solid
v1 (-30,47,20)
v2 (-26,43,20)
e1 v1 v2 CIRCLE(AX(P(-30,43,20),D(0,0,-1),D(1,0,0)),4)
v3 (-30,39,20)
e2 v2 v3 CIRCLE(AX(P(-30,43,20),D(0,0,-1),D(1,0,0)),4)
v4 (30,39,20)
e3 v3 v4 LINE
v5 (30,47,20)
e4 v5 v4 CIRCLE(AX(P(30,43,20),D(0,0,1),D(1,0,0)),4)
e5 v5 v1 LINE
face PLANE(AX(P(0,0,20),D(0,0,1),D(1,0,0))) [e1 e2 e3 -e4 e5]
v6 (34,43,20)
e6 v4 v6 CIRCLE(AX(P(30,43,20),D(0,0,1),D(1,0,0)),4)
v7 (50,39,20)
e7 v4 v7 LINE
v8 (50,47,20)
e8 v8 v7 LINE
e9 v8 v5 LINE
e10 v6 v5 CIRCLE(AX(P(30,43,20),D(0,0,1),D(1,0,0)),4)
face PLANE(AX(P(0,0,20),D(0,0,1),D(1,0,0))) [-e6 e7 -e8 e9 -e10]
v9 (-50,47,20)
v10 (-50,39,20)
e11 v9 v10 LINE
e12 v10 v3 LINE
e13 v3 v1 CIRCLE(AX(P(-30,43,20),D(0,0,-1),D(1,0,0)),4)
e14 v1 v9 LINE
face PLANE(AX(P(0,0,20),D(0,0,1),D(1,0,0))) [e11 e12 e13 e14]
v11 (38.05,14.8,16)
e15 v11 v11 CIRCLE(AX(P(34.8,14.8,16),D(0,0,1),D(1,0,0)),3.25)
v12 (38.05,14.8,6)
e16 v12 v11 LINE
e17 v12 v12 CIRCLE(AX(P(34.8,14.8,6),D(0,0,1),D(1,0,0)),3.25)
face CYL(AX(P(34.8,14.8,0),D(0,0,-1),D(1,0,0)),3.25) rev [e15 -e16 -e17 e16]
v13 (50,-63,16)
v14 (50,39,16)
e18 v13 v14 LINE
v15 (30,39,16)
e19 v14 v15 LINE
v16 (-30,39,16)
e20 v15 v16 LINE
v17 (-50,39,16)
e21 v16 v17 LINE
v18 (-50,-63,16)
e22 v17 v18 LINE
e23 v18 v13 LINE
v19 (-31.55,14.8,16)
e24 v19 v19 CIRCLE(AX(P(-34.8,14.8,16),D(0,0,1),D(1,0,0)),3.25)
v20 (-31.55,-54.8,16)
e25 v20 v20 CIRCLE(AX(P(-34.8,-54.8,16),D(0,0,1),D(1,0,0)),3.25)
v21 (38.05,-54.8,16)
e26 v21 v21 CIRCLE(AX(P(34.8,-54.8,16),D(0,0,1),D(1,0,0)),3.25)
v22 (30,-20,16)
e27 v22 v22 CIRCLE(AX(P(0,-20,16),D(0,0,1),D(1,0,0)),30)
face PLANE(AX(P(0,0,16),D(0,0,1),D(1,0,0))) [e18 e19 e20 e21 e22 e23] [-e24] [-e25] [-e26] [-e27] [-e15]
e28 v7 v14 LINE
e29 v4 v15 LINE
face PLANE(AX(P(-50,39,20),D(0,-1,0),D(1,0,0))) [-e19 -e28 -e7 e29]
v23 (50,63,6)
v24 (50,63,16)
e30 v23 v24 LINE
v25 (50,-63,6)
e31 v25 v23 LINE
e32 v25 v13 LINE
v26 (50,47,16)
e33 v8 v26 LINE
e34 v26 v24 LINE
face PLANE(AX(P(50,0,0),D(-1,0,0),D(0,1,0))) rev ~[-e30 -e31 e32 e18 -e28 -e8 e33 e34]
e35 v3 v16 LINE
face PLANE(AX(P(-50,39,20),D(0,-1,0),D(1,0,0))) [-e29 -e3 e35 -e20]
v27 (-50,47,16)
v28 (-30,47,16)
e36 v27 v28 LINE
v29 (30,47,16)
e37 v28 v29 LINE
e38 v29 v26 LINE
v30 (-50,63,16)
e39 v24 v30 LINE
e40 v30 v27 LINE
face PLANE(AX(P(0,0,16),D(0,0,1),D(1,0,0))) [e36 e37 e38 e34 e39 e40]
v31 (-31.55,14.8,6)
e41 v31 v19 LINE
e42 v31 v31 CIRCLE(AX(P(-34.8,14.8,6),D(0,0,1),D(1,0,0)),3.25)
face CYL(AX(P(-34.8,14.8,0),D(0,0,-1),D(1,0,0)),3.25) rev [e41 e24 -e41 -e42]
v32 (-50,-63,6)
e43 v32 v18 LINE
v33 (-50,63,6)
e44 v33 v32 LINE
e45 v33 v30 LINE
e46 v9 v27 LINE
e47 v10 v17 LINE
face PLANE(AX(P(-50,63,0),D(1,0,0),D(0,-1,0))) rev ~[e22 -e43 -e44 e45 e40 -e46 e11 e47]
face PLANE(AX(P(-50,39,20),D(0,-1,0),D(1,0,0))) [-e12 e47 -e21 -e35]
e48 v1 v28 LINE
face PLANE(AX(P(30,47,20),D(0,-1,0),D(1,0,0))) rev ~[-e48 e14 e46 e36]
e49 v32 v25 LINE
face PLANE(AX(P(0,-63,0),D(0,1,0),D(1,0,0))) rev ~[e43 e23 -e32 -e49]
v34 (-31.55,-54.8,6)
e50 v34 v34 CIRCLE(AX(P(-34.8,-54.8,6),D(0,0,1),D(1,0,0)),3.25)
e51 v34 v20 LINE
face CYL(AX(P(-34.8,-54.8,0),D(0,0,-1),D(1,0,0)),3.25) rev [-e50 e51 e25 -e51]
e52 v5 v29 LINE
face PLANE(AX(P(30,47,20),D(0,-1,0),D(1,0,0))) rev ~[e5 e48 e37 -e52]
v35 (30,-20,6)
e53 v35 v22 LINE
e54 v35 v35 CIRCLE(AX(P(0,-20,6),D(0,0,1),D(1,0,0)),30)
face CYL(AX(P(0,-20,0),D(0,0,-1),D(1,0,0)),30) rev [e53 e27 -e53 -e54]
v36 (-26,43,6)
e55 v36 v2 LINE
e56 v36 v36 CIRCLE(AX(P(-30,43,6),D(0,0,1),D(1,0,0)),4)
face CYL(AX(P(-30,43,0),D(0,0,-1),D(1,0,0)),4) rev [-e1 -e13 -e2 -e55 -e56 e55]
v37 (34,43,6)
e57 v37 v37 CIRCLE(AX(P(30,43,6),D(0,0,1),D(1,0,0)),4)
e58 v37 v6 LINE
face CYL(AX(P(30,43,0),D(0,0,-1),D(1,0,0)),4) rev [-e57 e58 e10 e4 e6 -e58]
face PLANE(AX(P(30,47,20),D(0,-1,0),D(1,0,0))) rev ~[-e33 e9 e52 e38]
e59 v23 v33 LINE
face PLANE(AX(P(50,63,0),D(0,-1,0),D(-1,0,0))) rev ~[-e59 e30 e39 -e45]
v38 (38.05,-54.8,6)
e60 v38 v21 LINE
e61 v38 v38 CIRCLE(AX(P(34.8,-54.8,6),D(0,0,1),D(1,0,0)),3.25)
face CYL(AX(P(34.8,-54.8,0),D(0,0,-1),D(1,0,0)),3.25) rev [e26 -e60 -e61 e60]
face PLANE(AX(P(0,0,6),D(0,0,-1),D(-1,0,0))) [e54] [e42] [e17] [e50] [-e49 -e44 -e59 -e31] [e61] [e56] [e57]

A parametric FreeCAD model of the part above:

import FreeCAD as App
import Part
import Sketcher
from FreeCAD import Vector
Q = App.Units.Quantity

doc = App.newDocument("Part")
params = doc.addObject("Spreadsheet::Sheet", "Params")
for row, (alias, value) in enumerate([
    ("sketch1_diameter", "60 mm"),
    ("sketch1_diameter2", "8 mm"),
    ("sketch1_diameter3", "6.5 mm"),
    ("sketch1_width", "100 mm"),
    ("sketch1_height", "126 mm"),
    ("pad1_length", "20 mm"),
    ("sketch2_diameter", "60 mm"),
    ("sketch2_diameter2", "6.5 mm"),
    ("sketch2_width", "100 mm"),
    ("sketch2_height", "16 mm"),
    ("sketch2_height2", "102 mm"),
    ("pocket1_length", "4 mm"),
    ("sketch3_diameter", "60 mm"),
    ("sketch3_diameter2", "8 mm"),
    ("sketch3_diameter3", "6.5 mm"),
    ("sketch3_width", "100 mm"),
    ("sketch3_height", "126 mm"),
    ("pocket2_length", "6 mm"),
], start=1):
    params.set(f"A{row}", alias)
    params.set(f"B{row}", "=" + value)
    params.setAlias(f"B{row}", alias)

body = doc.addObject("PartDesign::Body", "Body")

sketch1 = doc.addObject("Sketcher::SketchObject", "Sketch")
body.addObject(sketch1)
sketch1.AttachmentSupport = (doc.XY_Plane, [""])
sketch1.MapMode = "FlatFace"
sketch1.addGeometry([
    Part.LineSegment(Vector(50, 63, 0), Vector(-50, 63, 0)),
    Part.LineSegment(Vector(-50, 63, 0), Vector(-50, -63, 0)),
    Part.LineSegment(Vector(-50, -63, 0), Vector(50, -63, 0)),
    Part.LineSegment(Vector(50, -63, 0), Vector(50, 63, 0)),
    Part.Circle(Vector(0, -20, 0), Vector(0, 0, 1), 30),
    Part.Circle(Vector(34.8, 14.8, 0), Vector(0, 0, 1), 3.2),
    Part.Circle(Vector(30, 43, 0), Vector(0, 0, 1), 4),
    Part.Circle(Vector(34.8, -54.8, 0), Vector(0, 0, 1), 3.2),
    Part.Circle(Vector(-30, 43, 0), Vector(0, 0, 1), 4),
    Part.Circle(Vector(-34.8, 14.8, 0), Vector(0, 0, 1), 3.2),
    Part.Circle(Vector(-34.8, -54.8, 0), Vector(0, 0, 1), 3.2),
], False)
sketch1.addConstraint([
    Sketcher.Constraint("Coincident", 0, 2, 1, 1),
    Sketcher.Constraint("Coincident", 1, 2, 2, 1),
    Sketcher.Constraint("Coincident", 2, 2, 3, 1),
    Sketcher.Constraint("Coincident", 3, 2, 0, 1),
    Sketcher.Constraint("Horizontal", 0),
    Sketcher.Constraint("Vertical", 1),
    Sketcher.Constraint("Horizontal", 2),
    Sketcher.Constraint("Vertical", 3),
    Sketcher.Constraint("Equal", 5, 7),
    Sketcher.Constraint("Equal", 6, 8),
    Sketcher.Constraint("Equal", 7, 9),
    Sketcher.Constraint("Equal", 9, 10),
    Sketcher.Constraint("Symmetric", 0, 2, 2, 2, -1, 1),
    Sketcher.Constraint("Symmetric", 6, 3, 8, 3, -2),
    Sketcher.Constraint("Symmetric", 5, 3, 9, 3, -2),
    Sketcher.Constraint("Symmetric", 7, 3, 10, 3, -2),
    Sketcher.Constraint("PointOnObject", 4, 3, -2),
    Sketcher.Constraint("Vertical", 5, 3, 7, 3),
    Sketcher.Constraint("Diameter", 4, Q("60 mm")),
    Sketcher.Constraint("Diameter", 6, Q("8 mm")),
    Sketcher.Constraint("Diameter", 5, Q("6.5 mm")),
    Sketcher.Constraint("DistanceX", 0, 2, 0, 1, Q("100 mm")),
    Sketcher.Constraint("DistanceY", 1, 2, 1, 1, Q("126 mm")),
    Sketcher.Constraint("DistanceY", 4, 3, -1, 1, Q("20 mm")),
    Sketcher.Constraint("DistanceY", -1, 1, 6, 3, Q("43 mm")),
    Sketcher.Constraint("DistanceX", 8, 3, 6, 3, Q("60 mm")),
    Sketcher.Constraint("DistanceX", -1, 1, 5, 3, Q("34.8 mm")),
    Sketcher.Constraint("DistanceY", 4, 3, 5, 3, Q("34.8 mm")),
    Sketcher.Constraint("DistanceY", 7, 3, 4, 3, Q("34.8 mm")),
])
sketch1.setExpression("Constraints[18]", "Params.sketch1_diameter")
sketch1.setExpression("Constraints[19]", "Params.sketch1_diameter2")
sketch1.setExpression("Constraints[20]", "Params.sketch1_diameter3")
sketch1.setExpression("Constraints[21]", "Params.sketch1_width")
sketch1.setExpression("Constraints[22]", "Params.sketch1_height")
pad1 = doc.addObject("PartDesign::Pad", "Pad")
body.addObject(pad1)
pad1.Profile = sketch1
pad1.setExpression("Length", "Params.pad1_length")

sketch2 = doc.addObject("Sketcher::SketchObject", "Sketch001")
body.addObject(sketch2)
sketch2.AttachmentSupport = (doc.XY_Plane, [""])
sketch2.MapMode = "FlatFace"
sketch2.AttachmentOffset = App.Placement(Vector(0, 0, 20), App.Rotation())
sketch2.addGeometry([
    Part.LineSegment(Vector(50, 47, 0), Vector(50, 63, 0)),
    Part.LineSegment(Vector(50, 63, 0), Vector(-50, 63, 0)),
    Part.LineSegment(Vector(-50, 63, 0), Vector(-50, 47, 0)),
    Part.LineSegment(Vector(-50, 47, 0), Vector(50, 47, 0)),
    Part.LineSegment(Vector(50, -63, 0), Vector(50, 39, 0)),
    Part.LineSegment(Vector(50, 39, 0), Vector(-50, 39, 0)),
    Part.LineSegment(Vector(-50, 39, 0), Vector(-50, -63, 0)),
    Part.LineSegment(Vector(-50, -63, 0), Vector(50, -63, 0)),
    Part.Circle(Vector(-34.8, -54.8, 0), Vector(0, 0, 1), 3.2),
    Part.Circle(Vector(34.8, -54.8, 0), Vector(0, 0, 1), 3.2),
    Part.Circle(Vector(0, -20, 0), Vector(0, 0, 1), 30),
    Part.Circle(Vector(-34.8, 14.8, 0), Vector(0, 0, 1), 3.2),
    Part.Circle(Vector(34.8, 14.8, 0), Vector(0, 0, 1), 3.2),
], False)
sketch2.addConstraint([
    Sketcher.Constraint("Coincident", 0, 2, 1, 1),
    Sketcher.Constraint("Coincident", 1, 2, 2, 1),
    Sketcher.Constraint("Coincident", 2, 2, 3, 1),
    Sketcher.Constraint("Coincident", 3, 2, 0, 1),
    Sketcher.Constraint("Coincident", 4, 2, 5, 1),
    Sketcher.Constraint("Coincident", 5, 2, 6, 1),
    Sketcher.Constraint("Coincident", 6, 2, 7, 1),
    Sketcher.Constraint("Coincident", 7, 2, 4, 1),
    Sketcher.Constraint("Vertical", 0),
    Sketcher.Constraint("Horizontal", 1),
    Sketcher.Constraint("Vertical", 2),
    Sketcher.Constraint("Horizontal", 3),
    Sketcher.Constraint("Vertical", 4),
    Sketcher.Constraint("Horizontal", 5),
    Sketcher.Constraint("Vertical", 6),
    Sketcher.Constraint("Horizontal", 7),
    Sketcher.Constraint("Equal", 8, 9),
    Sketcher.Constraint("Equal", 9, 11),
    Sketcher.Constraint("Equal", 11, 12),
    Sketcher.Constraint("Symmetric", 0, 2, 6, 2, -1, 1),
    Sketcher.Constraint("Symmetric", 8, 3, 9, 3, -2),
    Sketcher.Constraint("Symmetric", 11, 3, 12, 3, -2),
    Sketcher.Constraint("PointOnObject", 10, 3, -2),
    Sketcher.Constraint("Vertical", 8, 3, 11, 3),
    Sketcher.Constraint("Vertical", 3, 2, 4, 2),
    Sketcher.Constraint("Vertical", 2, 2, 5, 2),
    Sketcher.Constraint("Diameter", 10, Q("60 mm")),
    Sketcher.Constraint("Diameter", 8, Q("6.5 mm")),
    Sketcher.Constraint("DistanceX", 1, 2, 1, 1, Q("100 mm")),
    Sketcher.Constraint("DistanceY", 0, 1, 0, 2, Q("16 mm")),
    Sketcher.Constraint("DistanceY", 4, 1, 4, 2, Q("102 mm")),
    Sketcher.Constraint("DistanceY", 10, 3, -1, 1, Q("20 mm")),
    Sketcher.Constraint("DistanceY", -1, 1, 0, 2, Q("63 mm")),
    Sketcher.Constraint("DistanceX", 8, 3, -1, 1, Q("34.8 mm")),
    Sketcher.Constraint("DistanceY", 8, 3, -1, 1, Q("54.8 mm")),
    Sketcher.Constraint("DistanceY", -1, 1, 11, 3, Q("14.8 mm")),
])
sketch2.setExpression("Constraints[26]", "Params.sketch2_diameter")
sketch2.setExpression("Constraints[27]", "Params.sketch2_diameter2")
sketch2.setExpression("Constraints[28]", "Params.sketch2_width")
sketch2.setExpression("Constraints[29]", "Params.sketch2_height")
sketch2.setExpression("Constraints[30]", "Params.sketch2_height2")
pocket1 = doc.addObject("PartDesign::Pocket", "Pocket")
body.addObject(pocket1)
pocket1.Profile = sketch2
pocket1.setExpression("Length", "Params.pocket1_length")

sketch3 = doc.addObject("Sketcher::SketchObject", "Sketch002")
body.addObject(sketch3)
sketch3.AttachmentSupport = (doc.XY_Plane, [""])
sketch3.MapMode = "FlatFace"
sketch3.addGeometry([
    Part.LineSegment(Vector(-50, 63, 0), Vector(50, 63, 0)),
    Part.LineSegment(Vector(50, 63, 0), Vector(50, -63, 0)),
    Part.LineSegment(Vector(50, -63, 0), Vector(-50, -63, 0)),
    Part.LineSegment(Vector(-50, -63, 0), Vector(-50, 63, 0)),
    Part.Circle(Vector(34.8, -54.8, 0), Vector(0, 0, 1), 3.2),
    Part.Circle(Vector(-34.8, -54.8, 0), Vector(0, 0, 1), 3.2),
    Part.Circle(Vector(0, -20, 0), Vector(0, 0, 1), 30),
    Part.Circle(Vector(34.8, 14.8, 0), Vector(0, 0, 1), 3.2),
    Part.Circle(Vector(30, 43, 0), Vector(0, 0, 1), 4),
    Part.Circle(Vector(-34.8, 14.8, 0), Vector(0, 0, 1), 3.2),
    Part.Circle(Vector(-30, 43, 0), Vector(0, 0, 1), 4),
], False)
sketch3.addConstraint([
    Sketcher.Constraint("Coincident", 0, 2, 1, 1),
    Sketcher.Constraint("Coincident", 1, 2, 2, 1),
    Sketcher.Constraint("Coincident", 2, 2, 3, 1),
    Sketcher.Constraint("Coincident", 3, 2, 0, 1),
    Sketcher.Constraint("Horizontal", 0),
    Sketcher.Constraint("Vertical", 1),
    Sketcher.Constraint("Horizontal", 2),
    Sketcher.Constraint("Vertical", 3),
    Sketcher.Constraint("Equal", 4, 5),
    Sketcher.Constraint("Equal", 5, 7),
    Sketcher.Constraint("Equal", 7, 9),
    Sketcher.Constraint("Equal", 8, 10),
    Sketcher.Constraint("Symmetric", 0, 2, 2, 2, -1, 1),
    Sketcher.Constraint("Symmetric", 4, 3, 5, 3, -2),
    Sketcher.Constraint("Symmetric", 7, 3, 9, 3, -2),
    Sketcher.Constraint("Symmetric", 8, 3, 10, 3, -2),
    Sketcher.Constraint("PointOnObject", 6, 3, -2),
    Sketcher.Constraint("Vertical", 4, 3, 7, 3),
    Sketcher.Constraint("Diameter", 6, Q("60 mm")),
    Sketcher.Constraint("Diameter", 8, Q("8 mm")),
    Sketcher.Constraint("Diameter", 4, Q("6.5 mm")),
    Sketcher.Constraint("DistanceX", 0, 1, 0, 2, Q("100 mm")),
    Sketcher.Constraint("DistanceY", 1, 2, 1, 1, Q("126 mm")),
    Sketcher.Constraint("DistanceY", 6, 3, -1, 1, Q("20 mm")),
    Sketcher.Constraint("DistanceX", -1, 1, 8, 3, Q("30 mm")),
    Sketcher.Constraint("DistanceY", -1, 1, 8, 3, Q("43 mm")),
    Sketcher.Constraint("DistanceX", -1, 1, 4, 3, Q("34.8 mm")),
    Sketcher.Constraint("DistanceY", 4, 3, -1, 1, Q("54.8 mm")),
    Sketcher.Constraint("DistanceY", -1, 1, 7, 3, Q("14.8 mm")),
])
sketch3.setExpression("Constraints[18]", "Params.sketch3_diameter")
sketch3.setExpression("Constraints[19]", "Params.sketch3_diameter2")
sketch3.setExpression("Constraints[20]", "Params.sketch3_diameter3")
sketch3.setExpression("Constraints[21]", "Params.sketch3_width")
sketch3.setExpression("Constraints[22]", "Params.sketch3_height")
pocket2 = doc.addObject("PartDesign::Pocket", "Pocket001")
body.addObject(pocket2)
pocket2.Profile = sketch3
pocket2.setExpression("Length", "Params.pocket2_length")
pocket2.Reversed = True

doc.recompute()
